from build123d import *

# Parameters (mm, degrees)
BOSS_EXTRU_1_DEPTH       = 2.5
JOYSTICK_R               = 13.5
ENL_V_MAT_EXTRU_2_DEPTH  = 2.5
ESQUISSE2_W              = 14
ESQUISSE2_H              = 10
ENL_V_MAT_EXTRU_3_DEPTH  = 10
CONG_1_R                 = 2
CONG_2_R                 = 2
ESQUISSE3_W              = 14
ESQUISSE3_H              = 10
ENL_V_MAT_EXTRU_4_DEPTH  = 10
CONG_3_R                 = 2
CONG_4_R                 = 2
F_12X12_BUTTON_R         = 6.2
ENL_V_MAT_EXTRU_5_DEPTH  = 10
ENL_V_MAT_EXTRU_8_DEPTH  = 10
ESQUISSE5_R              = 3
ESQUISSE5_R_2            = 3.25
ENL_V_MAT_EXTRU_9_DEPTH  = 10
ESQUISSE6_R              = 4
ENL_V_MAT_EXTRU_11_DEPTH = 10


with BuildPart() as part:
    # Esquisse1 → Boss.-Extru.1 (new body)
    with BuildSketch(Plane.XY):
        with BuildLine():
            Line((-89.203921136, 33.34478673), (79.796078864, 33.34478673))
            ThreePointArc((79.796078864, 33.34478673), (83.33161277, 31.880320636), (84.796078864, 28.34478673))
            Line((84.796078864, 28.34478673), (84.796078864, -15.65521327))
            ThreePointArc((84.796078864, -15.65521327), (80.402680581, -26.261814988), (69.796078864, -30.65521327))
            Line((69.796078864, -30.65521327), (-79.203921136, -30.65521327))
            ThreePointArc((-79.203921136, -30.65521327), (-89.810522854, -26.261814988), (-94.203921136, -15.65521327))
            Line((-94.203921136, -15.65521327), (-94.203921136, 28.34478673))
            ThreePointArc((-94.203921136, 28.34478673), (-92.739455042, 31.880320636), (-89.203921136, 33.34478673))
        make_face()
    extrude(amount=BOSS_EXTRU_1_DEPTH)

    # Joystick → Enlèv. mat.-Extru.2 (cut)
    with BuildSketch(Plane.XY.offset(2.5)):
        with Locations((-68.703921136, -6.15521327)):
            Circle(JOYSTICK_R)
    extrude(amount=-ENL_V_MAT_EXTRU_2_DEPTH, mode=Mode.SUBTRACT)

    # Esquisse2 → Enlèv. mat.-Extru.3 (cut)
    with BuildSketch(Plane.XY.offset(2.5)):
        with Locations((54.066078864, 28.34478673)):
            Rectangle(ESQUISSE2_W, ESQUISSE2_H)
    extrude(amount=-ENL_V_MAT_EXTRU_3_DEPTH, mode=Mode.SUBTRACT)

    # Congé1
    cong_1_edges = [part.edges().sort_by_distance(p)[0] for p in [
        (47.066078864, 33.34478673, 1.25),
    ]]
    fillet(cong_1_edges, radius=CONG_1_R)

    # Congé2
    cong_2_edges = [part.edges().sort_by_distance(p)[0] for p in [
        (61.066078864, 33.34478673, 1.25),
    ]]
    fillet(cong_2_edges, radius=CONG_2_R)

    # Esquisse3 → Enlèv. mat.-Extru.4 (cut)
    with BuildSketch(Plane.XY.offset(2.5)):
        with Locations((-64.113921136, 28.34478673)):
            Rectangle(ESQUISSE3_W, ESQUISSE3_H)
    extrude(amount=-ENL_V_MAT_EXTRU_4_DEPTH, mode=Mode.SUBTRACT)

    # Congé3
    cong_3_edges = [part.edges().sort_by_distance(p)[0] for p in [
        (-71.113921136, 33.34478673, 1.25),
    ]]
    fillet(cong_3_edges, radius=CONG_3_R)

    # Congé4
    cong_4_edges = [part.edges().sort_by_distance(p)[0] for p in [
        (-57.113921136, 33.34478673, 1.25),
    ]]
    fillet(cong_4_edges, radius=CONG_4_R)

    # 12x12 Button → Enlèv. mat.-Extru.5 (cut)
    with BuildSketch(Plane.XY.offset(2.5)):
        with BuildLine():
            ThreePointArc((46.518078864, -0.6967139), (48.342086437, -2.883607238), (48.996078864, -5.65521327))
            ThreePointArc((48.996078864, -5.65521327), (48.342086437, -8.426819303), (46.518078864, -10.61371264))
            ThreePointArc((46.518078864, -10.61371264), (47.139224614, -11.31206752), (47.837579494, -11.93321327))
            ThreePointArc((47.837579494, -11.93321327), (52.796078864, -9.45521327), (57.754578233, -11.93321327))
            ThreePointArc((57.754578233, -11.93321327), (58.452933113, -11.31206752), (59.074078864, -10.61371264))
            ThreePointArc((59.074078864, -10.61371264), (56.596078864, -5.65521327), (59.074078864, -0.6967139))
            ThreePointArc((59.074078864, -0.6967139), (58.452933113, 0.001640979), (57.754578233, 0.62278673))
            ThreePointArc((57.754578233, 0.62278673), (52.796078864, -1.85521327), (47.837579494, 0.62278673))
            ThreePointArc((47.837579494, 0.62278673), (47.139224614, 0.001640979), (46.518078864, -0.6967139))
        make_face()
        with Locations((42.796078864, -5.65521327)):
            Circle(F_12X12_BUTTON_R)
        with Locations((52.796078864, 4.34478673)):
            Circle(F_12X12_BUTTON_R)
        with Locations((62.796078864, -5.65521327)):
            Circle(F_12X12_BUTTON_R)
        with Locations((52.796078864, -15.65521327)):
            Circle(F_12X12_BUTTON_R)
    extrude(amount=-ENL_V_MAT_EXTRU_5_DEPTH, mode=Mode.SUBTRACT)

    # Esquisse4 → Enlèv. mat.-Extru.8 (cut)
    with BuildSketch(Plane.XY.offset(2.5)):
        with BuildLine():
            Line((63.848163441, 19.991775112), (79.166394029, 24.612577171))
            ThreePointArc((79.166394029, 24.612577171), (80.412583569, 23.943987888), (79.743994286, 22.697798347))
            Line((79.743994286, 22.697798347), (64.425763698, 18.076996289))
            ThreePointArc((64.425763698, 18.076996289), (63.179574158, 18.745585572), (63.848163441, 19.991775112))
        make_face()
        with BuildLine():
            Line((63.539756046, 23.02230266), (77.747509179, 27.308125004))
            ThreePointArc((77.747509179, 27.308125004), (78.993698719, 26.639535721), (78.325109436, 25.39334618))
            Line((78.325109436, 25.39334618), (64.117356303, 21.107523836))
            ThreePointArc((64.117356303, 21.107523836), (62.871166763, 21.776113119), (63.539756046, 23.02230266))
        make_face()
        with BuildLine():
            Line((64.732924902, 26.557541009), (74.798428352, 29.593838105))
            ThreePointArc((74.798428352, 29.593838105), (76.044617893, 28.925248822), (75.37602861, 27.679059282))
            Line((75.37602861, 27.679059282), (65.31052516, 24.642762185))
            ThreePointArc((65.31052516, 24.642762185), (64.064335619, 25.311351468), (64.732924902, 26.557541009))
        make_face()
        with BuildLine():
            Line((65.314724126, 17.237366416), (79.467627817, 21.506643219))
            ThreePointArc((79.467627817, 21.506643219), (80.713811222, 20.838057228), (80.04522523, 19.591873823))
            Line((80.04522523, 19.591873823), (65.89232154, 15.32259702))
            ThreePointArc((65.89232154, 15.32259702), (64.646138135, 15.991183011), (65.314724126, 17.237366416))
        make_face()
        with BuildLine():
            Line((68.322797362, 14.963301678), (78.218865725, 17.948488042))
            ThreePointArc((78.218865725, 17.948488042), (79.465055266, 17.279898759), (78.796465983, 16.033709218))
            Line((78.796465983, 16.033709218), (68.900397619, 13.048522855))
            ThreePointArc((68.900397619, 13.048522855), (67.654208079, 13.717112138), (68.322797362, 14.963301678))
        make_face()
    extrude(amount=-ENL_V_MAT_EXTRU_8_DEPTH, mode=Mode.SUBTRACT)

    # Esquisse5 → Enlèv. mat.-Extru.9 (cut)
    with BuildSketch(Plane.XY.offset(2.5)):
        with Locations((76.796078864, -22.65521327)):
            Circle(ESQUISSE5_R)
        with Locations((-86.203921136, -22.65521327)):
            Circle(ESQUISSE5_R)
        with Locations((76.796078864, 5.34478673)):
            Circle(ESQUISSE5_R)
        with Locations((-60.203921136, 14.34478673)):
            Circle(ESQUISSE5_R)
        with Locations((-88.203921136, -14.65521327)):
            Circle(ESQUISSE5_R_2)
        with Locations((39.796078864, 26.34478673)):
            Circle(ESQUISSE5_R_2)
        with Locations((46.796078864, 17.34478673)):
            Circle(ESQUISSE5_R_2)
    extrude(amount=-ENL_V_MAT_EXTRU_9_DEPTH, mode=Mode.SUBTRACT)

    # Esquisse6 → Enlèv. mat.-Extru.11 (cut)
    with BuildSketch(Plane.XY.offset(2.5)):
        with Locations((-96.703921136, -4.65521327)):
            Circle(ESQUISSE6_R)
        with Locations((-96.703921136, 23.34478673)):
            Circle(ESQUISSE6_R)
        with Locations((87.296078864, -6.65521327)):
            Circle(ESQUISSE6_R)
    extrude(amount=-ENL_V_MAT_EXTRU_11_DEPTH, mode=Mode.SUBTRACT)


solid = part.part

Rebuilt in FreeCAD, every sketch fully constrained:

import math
import FreeCAD as App
import Part
import Sketcher
from FreeCAD import Vector


def edges_at(feature, points):
    """Names of the edges that pass closest to the given points."""
    edges = feature.Shape.Edges
    near = lambda p: min(range(len(edges)), key=lambda i: edges[i].distToShape(Part.Vertex(*p))[0])
    return sorted({f"Edge{near(p) + 1}" for p in points})

doc = App.newDocument("Part")
params = doc.addObject("Spreadsheet::Sheet", "Params")
for row, (alias, value) in enumerate([
    ("sketch1_radius", "5 mm"),
    ("sketch1_radius2", "15 mm"),
    ("sketch1_width", "169 mm"),
    ("sketch1_height", "44 mm"),
    ("pad1_length", "2.5 mm"),
    ("sketch2_diameter", "27 mm"),
    ("pocket1_length", "2.5 mm"),
    ("sketch3_width", "14 mm"),
    ("sketch3_height", "10 mm"),
    ("pocket2_length", "10 mm"),
    ("fillet_radius", "2 mm"),
    ("fillet2_radius", "2 mm"),
    ("sketch4_width", "14 mm"),
    ("sketch4_height", "10 mm"),
    ("pocket3_length", "10 mm"),
    ("fillet3_radius", "2 mm"),
    ("fillet4_radius", "2 mm"),
    ("sketch5_radius", "8 mm"),
    ("sketch5_radius2", "6.2 mm"),
    ("pocket4_length", "10 mm"),
    ("sketch6_radius", "1 mm"),
    ("sketch6_length", "16 mm"),
    ("pocket5_length", "10 mm"),
    ("sketch7_diameter", "6 mm"),
    ("sketch7_diameter2", "6.5 mm"),
    ("pocket6_length", "10 mm"),
    ("sketch8_diameter", "8 mm"),
    ("pocket7_length", "10 mm"),
], start=1):
    params.set(f"A{row}", alias)
    params.set(f"B{row}", "=" + value)
    params.setAlias(f"B{row}", alias)

body = doc.addObject("PartDesign::Body", "Body")

# Sketch on XY plane
sketch1 = body.newObject("Sketcher::SketchObject", "Sketch")
sketch1.AttachmentSupport = (doc.getObject("XY_Plane"), [""])
sketch1.MapMode = "FlatFace"
sketch1.addGeometry([
    Part.LineSegment(Vector(79.796079, 33.344787, 0), Vector(-89.203921, 33.344787, 0)),  # 0
    Part.ArcOfCircle(Part.Circle(Vector(-89.203921, 28.344787, 0), Vector(0, 0, 1), 5), math.radians(90), math.radians(180)),  # 1
    Part.LineSegment(Vector(-94.203921, 28.344787, 0), Vector(-94.203921, -15.655213, 0)),  # 2
    Part.ArcOfCircle(Part.Circle(Vector(-79.203921, -15.655213, 0), Vector(0, 0, 1), 15), math.radians(180), math.radians(270)),  # 3
    Part.LineSegment(Vector(-79.203921, -30.655213, 0), Vector(69.796079, -30.655213, 0)),  # 4
    Part.ArcOfCircle(Part.Circle(Vector(69.796079, -15.655213, 0), Vector(0, 0, 1), 15), math.radians(-90), math.radians(0)),  # 5
    Part.LineSegment(Vector(84.796079, -15.655213, 0), Vector(84.796079, 28.344787, 0)),  # 6
    Part.ArcOfCircle(Part.Circle(Vector(79.796079, 28.344787, 0), Vector(0, 0, 1), 5), math.radians(0), math.radians(90)),  # 7
], False)
sketch1.addConstraint([
    Sketcher.Constraint("Tangent", 0, 2, 1, 1),
    Sketcher.Constraint("Tangent", 1, 2, 2, 1),
    Sketcher.Constraint("Tangent", 2, 2, 3, 1),
    Sketcher.Constraint("Tangent", 3, 2, 4, 1),
    Sketcher.Constraint("Tangent", 4, 2, 5, 1),
    Sketcher.Constraint("Tangent", 5, 2, 6, 1),
    Sketcher.Constraint("Tangent", 6, 2, 7, 1),
    Sketcher.Constraint("Tangent", 7, 2, 0, 1),
    Sketcher.Constraint("Horizontal", 0),
    Sketcher.Constraint("Vertical", 2),
    Sketcher.Constraint("Horizontal", 4),
    Sketcher.Constraint("Vertical", 6),
    Sketcher.Constraint("Equal", 3, 5),
    Sketcher.Constraint("Equal", 1, 7),
    Sketcher.Constraint("Radius", 1, 5.0),
    Sketcher.Constraint("Radius", 3, 15.0),
    Sketcher.Constraint("DistanceX", 0, 2, 0, 1, 169.0),
    Sketcher.Constraint("DistanceY", 2, 2, 2, 1, 44.0),
    Sketcher.Constraint("DistanceX", 1, 3, -1, 1, 89.203921),
    Sketcher.Constraint("DistanceY", -1, 1, 1, 3, 28.344787),
])
sketch1.setExpression("Constraints[14]", "Params.sketch1_radius")
sketch1.setExpression("Constraints[15]", "Params.sketch1_radius2")
sketch1.setExpression("Constraints[16]", "Params.sketch1_width")
sketch1.setExpression("Constraints[17]", "Params.sketch1_height")
pad1 = body.newObject("PartDesign::Pad", "Pad")
pad1.Profile = sketch1
pad1.setExpression("Length", "Params.pad1_length")

# Sketch on XY plane
sketch2 = body.newObject("Sketcher::SketchObject", "Sketch001")
sketch2.AttachmentSupport = (doc.getObject("XY_Plane"), [""])
sketch2.MapMode = "FlatFace"
sketch2.AttachmentOffset = App.Placement(Vector(0, 0, 2.5), App.Rotation())
sketch2.addGeometry(Part.Circle(Vector(-68.703921, -6.155213, 0), Vector(0, 0, 1), 13.5), False)
sketch2.addConstraint([
    Sketcher.Constraint("Diameter", 0, 27.0),
    Sketcher.Constraint("DistanceX", 0, 3, -1, 1, 68.703921),
    Sketcher.Constraint("DistanceY", 0, 3, -1, 1, 6.155213),
])
sketch2.setExpression("Constraints[0]", "Params.sketch2_diameter")
pocket1 = body.newObject("PartDesign::Pocket", "Pocket")
pocket1.Profile = sketch2
pocket1.setExpression("Length", "Params.pocket1_length")

# Sketch on XY plane
sketch3 = body.newObject("Sketcher::SketchObject", "Sketch002")
sketch3.AttachmentSupport = (doc.getObject("XY_Plane"), [""])
sketch3.MapMode = "FlatFace"
sketch3.AttachmentOffset = App.Placement(Vector(0, 0, 2.5), App.Rotation())
sketch3.addGeometry([
    Part.LineSegment(Vector(47.066079, 33.344787, 0), Vector(47.066079, 23.344787, 0)),
    Part.LineSegment(Vector(47.066079, 23.344787, 0), Vector(61.066079, 23.344787, 0)),
    Part.LineSegment(Vector(61.066079, 23.344787, 0), Vector(61.066079, 33.344787, 0)),
    Part.LineSegment(Vector(61.066079, 33.344787, 0), Vector(47.066079, 33.344787, 0)),
], False)
sketch3.addConstraint([
    Sketcher.Constraint("Coincident", 0, 2, 1, 1),
    Sketcher.Constraint("Coincident", 1, 2, 2, 1),
    Sketcher.Constraint("Coincident", 2, 2, 3, 1),
    Sketcher.Constraint("Coincident", 3, 2, 0, 1),
    Sketcher.Constraint("Vertical", 0),
    Sketcher.Constraint("Horizontal", 1),
    Sketcher.Constraint("Vertical", 2),
    Sketcher.Constraint("Horizontal", 3),
    Sketcher.Constraint("DistanceX", 1, 1, 1, 2, 14.0),
    Sketcher.Constraint("DistanceY", 0, 2, 0, 1, 10.0),
    Sketcher.Constraint("DistanceX", -1, 1, 0, 2, 47.066079),
    Sketcher.Constraint("DistanceY", -1, 1, 0, 2, 23.344787),
])
sketch3.setExpression("Constraints[8]", "Params.sketch3_width")
sketch3.setExpression("Constraints[9]", "Params.sketch3_height")
pocket2 = body.newObject("PartDesign::Pocket", "Pocket001")
pocket2.Profile = sketch3
pocket2.setExpression("Length", "Params.pocket2_length")
doc.recompute()

fillet = body.newObject("PartDesign::Fillet", "Fillet")
fillet.Base = (pocket2, edges_at(pocket2, [(47.066, 33.345, 1.25)]))
fillet.setExpression("Radius", "Params.fillet_radius")
doc.recompute()

fillet2 = body.newObject("PartDesign::Fillet", "Fillet001")
fillet2.Base = (fillet, edges_at(fillet, [(61.066, 33.345, 1.25)]))
fillet2.setExpression("Radius", "Params.fillet2_radius")

# Sketch on XY plane
sketch4 = body.newObject("Sketcher::SketchObject", "Sketch003")
sketch4.AttachmentSupport = (doc.getObject("XY_Plane"), [""])
sketch4.MapMode = "FlatFace"
sketch4.AttachmentOffset = App.Placement(Vector(0, 0, 2.5), App.Rotation())
sketch4.addGeometry([
    Part.LineSegment(Vector(-71.113921, 33.344787, 0), Vector(-71.113921, 23.344787, 0)),
    Part.LineSegment(Vector(-71.113921, 23.344787, 0), Vector(-57.113921, 23.344787, 0)),
    Part.LineSegment(Vector(-57.113921, 23.344787, 0), Vector(-57.113921, 33.344787, 0)),
    Part.LineSegment(Vector(-57.113921, 33.344787, 0), Vector(-71.113921, 33.344787, 0)),
], False)
sketch4.addConstraint([
    Sketcher.Constraint("Coincident", 0, 2, 1, 1),
    Sketcher.Constraint("Coincident", 1, 2, 2, 1),
    Sketcher.Constraint("Coincident", 2, 2, 3, 1),
    Sketcher.Constraint("Coincident", 3, 2, 0, 1),
    Sketcher.Constraint("Vertical", 0),
    Sketcher.Constraint("Horizontal", 1),
    Sketcher.Constraint("Vertical", 2),
    Sketcher.Constraint("Horizontal", 3),
    Sketcher.Constraint("DistanceX", 1, 1, 1, 2, 14.0),
    Sketcher.Constraint("DistanceY", 0, 2, 0, 1, 10.0),
    Sketcher.Constraint("DistanceX", 0, 2, -1, 1, 71.113921),
    Sketcher.Constraint("DistanceY", -1, 1, 0, 2, 23.344787),
])
sketch4.setExpression("Constraints[8]", "Params.sketch4_width")
sketch4.setExpression("Constraints[9]", "Params.sketch4_height")
pocket3 = body.newObject("PartDesign::Pocket", "Pocket002")
pocket3.Profile = sketch4
pocket3.setExpression("Length", "Params.pocket3_length")
doc.recompute()

fillet3 = body.newObject("PartDesign::Fillet", "Fillet002")
fillet3.Base = (pocket3, edges_at(pocket3, [(-71.114, 33.345, 1.25)]))
fillet3.setExpression("Radius", "Params.fillet3_radius")
doc.recompute()

fillet4 = body.newObject("PartDesign::Fillet", "Fillet003")
fillet4.Base = (fillet3, edges_at(fillet3, [(-57.114, 33.345, 1.25)]))
fillet4.setExpression("Radius", "Params.fillet4_radius")

# Sketch on XY plane
sketch5 = body.newObject("Sketcher::SketchObject", "Sketch004")
sketch5.AttachmentSupport = (doc.getObject("XY_Plane"), [""])
sketch5.MapMode = "FlatFace"
sketch5.AttachmentOffset = App.Placement(Vector(0, 0, 2.5), App.Rotation())
sketch5.addGeometry([
    Part.ArcOfCircle(Part.Circle(Vector(52.796079, -5.655213, 0), Vector(0, 0, 1), 8), math.radians(-141.697562), math.radians(-128.302438)),  # 0
    Part.ArcOfCircle(Part.Circle(Vector(52.796079, -15.655213, 0), Vector(0, 0, 1), 6.2), math.radians(143.106996), math.radians(396.893004)),  # 1
    Part.ArcOfCircle(Part.Circle(Vector(52.796079, -5.655213, 0), Vector(0, 0, 1), 8), math.radians(-51.697562), math.radians(-38.302438)),  # 2
    Part.ArcOfCircle(Part.Circle(Vector(62.796079, -5.655213, 0), Vector(0, 0, 1), 6.2), math.radians(-126.893004), math.radians(126.893004)),  # 3
    Part.ArcOfCircle(Part.Circle(Vector(52.796079, -5.655213, 0), Vector(0, 0, 1), 8), math.radians(38.302438), math.radians(51.697562)),  # 4
    Part.ArcOfCircle(Part.Circle(Vector(52.796079, 4.344787, 0), Vector(0, 0, 1), 6.2), math.radians(-36.893004), math.radians(216.893004)),  # 5
    Part.ArcOfCircle(Part.Circle(Vector(52.796079, -5.655213, 0), Vector(0, 0, 1), 8), math.radians(128.302438), math.radians(141.697562)),  # 6
    Part.ArcOfCircle(Part.Circle(Vector(42.796079, -5.655213, 0), Vector(0, 0, 1), 6.2), math.radians(53.106996), math.radians(306.893004)),  # 7
], False)
sketch5.addConstraint([
    Sketcher.Constraint("Coincident", 0, 2, 1, 1),
    Sketcher.Constraint("Coincident", 1, 2, 2, 1),
    Sketcher.Constraint("Coincident", 2, 2, 3, 1),
    Sketcher.Constraint("Coincident", 3, 2, 4, 1),
    Sketcher.Constraint("Coincident", 4, 2, 5, 1),
    Sketcher.Constraint("Coincident", 5, 2, 6, 1),
    Sketcher.Constraint("Coincident", 6, 2, 7, 1),
    Sketcher.Constraint("Coincident", 7, 2, 0, 1),
    Sketcher.Constraint("Coincident", 2, 3, 0, 3),
    Sketcher.Constraint("Coincident", 4, 3, 0, 3),
    Sketcher.Constraint("Coincident", 6, 3, 0, 3),
    Sketcher.Constraint("Equal", 0, 2),
    Sketcher.Constraint("Equal", 1, 3),
    Sketcher.Constraint("Equal", 2, 4),
    Sketcher.Constraint("Equal", 3, 5),
    Sketcher.Constraint("Equal", 4, 6),
    Sketcher.Constraint("Equal", 5, 7),
    Sketcher.Constraint("Horizontal", 2, 3, 3, 3),
    Sketcher.Constraint("Horizontal", 6, 3, 7, 3),
    Sketcher.Constraint("Horizontal", 0, 2, 1, 2),
    Sketcher.Constraint("Horizontal", 4, 2, 5, 2),
    Sketcher.Constraint("Horizontal", 3, 2, 6, 2),
    Sketcher.Constraint("Vertical", 1, 2, 4, 2),
    Sketcher.Constraint("Radius", 0, 8.0),
    Sketcher.Constraint("Radius", 1, 6.2),
    Sketcher.Constraint("DistanceY", 1, 3, 0, 3, 10.0),
    Sketcher.Constraint("DistanceX", 2, 3, 3, 3, 10.0),
    Sketcher.Constraint("DistanceX", -1, 1, 0, 3, 52.796079),
    Sketcher.Constraint("DistanceY", 0, 3, -1, 1, 5.655213),
])
sketch5.setExpression("Constraints[23]", "Params.sketch5_radius")
sketch5.setExpression("Constraints[24]", "Params.sketch5_radius2")
pocket4 = body.newObject("PartDesign::Pocket", "Pocket003")
pocket4.Profile = sketch5
pocket4.setExpression("Length", "Params.pocket4_length")

# Sketch on XY plane
sketch6 = body.newObject("Sketcher::SketchObject", "Sketch005")
sketch6.AttachmentSupport = (doc.getObject("XY_Plane"), [""])
sketch6.MapMode = "FlatFace"
sketch6.AttachmentOffset = App.Placement(Vector(0, 0, 2.5), App.Rotation())
sketch6.addGeometry([
    Part.LineSegment(Vector(79.166394, 24.612577, 0), Vector(63.848163, 19.991775, 0)),  # 0
    Part.ArcOfCircle(Part.Circle(Vector(64.136964, 19.034386, 0), Vector(0, 0, 1), 1), math.radians(106.786135), math.radians(286.786135)),  # 1
    Part.LineSegment(Vector(64.425764, 18.076996, 0), Vector(79.743994, 22.697798, 0)),  # 2
    Part.ArcOfCircle(Part.Circle(Vector(79.455194, 23.655188, 0), Vector(0, 0, 1), 1), math.radians(-73.213865), math.radians(106.786135)),  # 3
    Part.LineSegment(Vector(77.747509, 27.308125, 0), Vector(63.539756, 23.022303, 0)),  # 4
    Part.ArcOfCircle(Part.Circle(Vector(63.828556, 22.064913, 0), Vector(0, 0, 1), 1), math.radians(106.786135), math.radians(286.786135)),  # 5
    Part.LineSegment(Vector(64.117356, 21.107524, 0), Vector(78.325109, 25.393346, 0)),  # 6
    Part.ArcOfCircle(Part.Circle(Vector(78.036309, 26.350736, 0), Vector(0, 0, 1), 1), math.radians(-73.213865), math.radians(106.786135)),  # 7
    Part.LineSegment(Vector(74.798428, 29.593838, 0), Vector(64.732925, 26.557541, 0)),  # 8
    Part.ArcOfCircle(Part.Circle(Vector(65.021725, 25.600152, 0), Vector(0, 0, 1), 1), math.radians(106.786135), math.radians(286.786135)),  # 9
    Part.LineSegment(Vector(65.310525, 24.642762, 0), Vector(75.376029, 27.679059, 0)),  # 10
    Part.ArcOfCircle(Part.Circle(Vector(75.087228, 28.636449, 0), Vector(0, 0, 1), 1), math.radians(-73.213865), math.radians(106.786135)),  # 11
    Part.LineSegment(Vector(79.467628, 21.506643, 0), Vector(65.314724, 17.237366, 0)),  # 12
    Part.ArcOfCircle(Part.Circle(Vector(65.603523, 16.279982, 0), Vector(0, 0, 1), 0.999995), math.radians(106.786135), math.radians(286.786135)),  # 13
    Part.LineSegment(Vector(65.892322, 15.322597, 0), Vector(80.045225, 19.591874, 0)),  # 14
    Part.ArcOfCircle(Part.Circle(Vector(79.756427, 20.549259, 0), Vector(0, 0, 1), 0.999995), math.radians(-73.213865), math.radians(106.786135)),  # 15
    Part.LineSegment(Vector(78.218866, 17.948488, 0), Vector(68.322797, 14.963302, 0)),  # 16
    Part.ArcOfCircle(Part.Circle(Vector(68.611597, 14.005912, 0), Vector(0, 0, 1), 1), math.radians(106.786135), math.radians(286.786135)),  # 17
    Part.LineSegment(Vector(68.900398, 13.048523, 0), Vector(78.796466, 16.033709, 0)),  # 18
    Part.ArcOfCircle(Part.Circle(Vector(78.507666, 16.991099, 0), Vector(0, 0, 1), 1), math.radians(-73.213865), math.radians(106.786135)),  # 19
], False)
sketch6.addConstraint([
    Sketcher.Constraint("Tangent", 0, 2, 1, 1),
    Sketcher.Constraint("Tangent", 1, 2, 2, 1),
    Sketcher.Constraint("Tangent", 2, 2, 3, 1),
    Sketcher.Constraint("Tangent", 3, 2, 0, 1),
    Sketcher.Constraint("Tangent", 4, 2, 5, 1),
    Sketcher.Constraint("Tangent", 5, 2, 6, 1),
    Sketcher.Constraint("Tangent", 6, 2, 7, 1),
    Sketcher.Constraint("Tangent", 7, 2, 4, 1),
    Sketcher.Constraint("Tangent", 8, 2, 9, 1),
    Sketcher.Constraint("Tangent", 9, 2, 10, 1),
    Sketcher.Constraint("Tangent", 10, 2, 11, 1),
    Sketcher.Constraint("Tangent", 11, 2, 8, 1),
    Sketcher.Constraint("Tangent", 12, 2, 13, 1),
    Sketcher.Constraint("Tangent", 13, 2, 14, 1),
    Sketcher.Constraint("Tangent", 14, 2, 15, 1),
    Sketcher.Constraint("Tangent", 15, 2, 12, 1),
    Sketcher.Constraint("Tangent", 16, 2, 17, 1),
    Sketcher.Constraint("Tangent", 17, 2, 18, 1),
    Sketcher.Constraint("Tangent", 18, 2, 19, 1),
    Sketcher.Constraint("Tangent", 19, 2, 16, 1),
    Sketcher.Constraint("Equal", 1, 3),
    Sketcher.Constraint("Equal", 3, 5),
    Sketcher.Constraint("Equal", 5, 7),
    Sketcher.Constraint("Equal", 7, 9),
    Sketcher.Constraint("Equal", 9, 11),
    Sketcher.Constraint("Equal", 13, 15),
    Sketcher.Constraint("Equal", 11, 17),
    Sketcher.Constraint("Equal", 17, 19),
    Sketcher.Constraint("Parallel", 2, 4),
    Sketcher.Constraint("Parallel", 6, 8),
    Sketcher.Constraint("Parallel", 10, 12),
    Sketcher.Constraint("Parallel", 14, 16),
    Sketcher.Constraint("Radius", 1, 1.0),
    Sketcher.Constraint("Distance", 0, 16.0),
    Sketcher.Constraint("Radius", 13, 0.999995),
    Sketcher.Constraint("DistanceY", 17, 3, 5, 3, 8.059001),
    Sketcher.Constraint("Distance", 4, 14.840098),
    Sketcher.Constraint("DistanceY", -1, 1, 19, 3, 16.991099),
    Sketcher.Constraint("DistanceY", -1, 1, 2, 2, 22.697798),
    Sketcher.Constraint("DistanceY", -1, 1, 16, 2, 14.963302),
    Sketcher.Constraint("DistanceX", 11, 3, 15, 3, 4.669198),
    Sketcher.Constraint("DistanceX", 9, 3, 15, 3, 14.734701),
    Sketcher.Constraint("DistanceX", 0, 2, 1, 3, 0.2888),
    Sketcher.Constraint("DistanceY", 13, 2, 1, 2, 2.754399),
    Sketcher.Constraint("DistanceX", -1, 1, 7, 3, 78.036309),
    Sketcher.Constraint("DistanceY", -1, 1, 9, 3, 25.600152),
    Sketcher.Constraint("DistanceX", -1, 1, 11, 3, 75.087228),
    Sketcher.Constraint("DistanceY", -1, 1, 15, 3, 20.549259),
    Sketcher.Constraint("DistanceX", 1, 3, 9, 3, 0.884761),
    Sketcher.Constraint("DistanceX", 5, 3, 17, 3, 4.783041),
])
sketch6.setExpression("Constraints[32]", "Params.sketch6_radius")
sketch6.setExpression("Constraints[33]", "Params.sketch6_length")
pocket5 = body.newObject("PartDesign::Pocket", "Pocket004")
pocket5.Profile = sketch6
pocket5.setExpression("Length", "Params.pocket5_length")

# Sketch on XY plane
sketch7 = body.newObject("Sketcher::SketchObject", "Sketch006")
sketch7.AttachmentSupport = (doc.getObject("XY_Plane"), [""])
sketch7.MapMode = "FlatFace"
sketch7.AttachmentOffset = App.Placement(Vector(0, 0, 2.5), App.Rotation())
sketch7.addGeometry([
    Part.Circle(Vector(76.796079, -22.655213, 0), Vector(0, 0, 1), 3),  # 0
    Part.Circle(Vector(-86.203921, -22.655213, 0), Vector(0, 0, 1), 3),  # 1
    Part.Circle(Vector(76.796079, 5.344787, 0), Vector(0, 0, 1), 3),  # 2
    Part.Circle(Vector(-60.203921, 14.344787, 0), Vector(0, 0, 1), 3),  # 3
    Part.Circle(Vector(-88.203921, -14.655213, 0), Vector(0, 0, 1), 3.25),  # 4
    Part.Circle(Vector(39.796079, 26.344787, 0), Vector(0, 0, 1), 3.25),  # 5
    Part.Circle(Vector(46.796079, 17.344787, 0), Vector(0, 0, 1), 3.25),  # 6
], False)
sketch7.addConstraint([
    Sketcher.Constraint("Equal", 0, 1),
    Sketcher.Constraint("Equal", 1, 2),
    Sketcher.Constraint("Equal", 2, 3),
    Sketcher.Constraint("Equal", 4, 5),
    Sketcher.Constraint("Equal", 5, 6),
    Sketcher.Constraint("Horizontal", 0, 3, 1, 3),
    Sketcher.Constraint("Vertical", 0, 3, 2, 3),
    Sketcher.Constraint("Diameter", 0, 6.0),
    Sketcher.Constraint("Diameter", 4, 6.5),
    Sketcher.Constraint("DistanceX", 1, 3, 0, 3, 163.0),
    Sketcher.Constraint("DistanceY", 0, 3, 2, 3, 28.0),
    Sketcher.Constraint("DistanceX", 1, 3, 3, 3, 26.0),
    Sketcher.Constraint("DistanceY", 1, 3, 3, 3, 37.0),
    Sketcher.Constraint("DistanceX", 4, 3, 1, 3, 2.0),
    Sketcher.Constraint("DistanceY", 1, 3, 4, 3, 8.0),
    Sketcher.Constraint("DistanceX", 5, 3, 2, 3, 37.0),
    Sketcher.Constraint("DistanceY", 2, 3, 5, 3, 21.0),
    Sketcher.Constraint("DistanceX", 5, 3, 6, 3, 7.0),
    Sketcher.Constraint("DistanceY", 6, 3, 5, 3, 9.0),
    Sketcher.Constraint("DistanceX", -1, 1, 0, 3, 76.796079),
    Sketcher.Constraint("DistanceY", 0, 3, -1, 1, 22.655213),
])
sketch7.setExpression("Constraints[7]", "Params.sketch7_diameter")
sketch7.setExpression("Constraints[8]", "Params.sketch7_diameter2")
pocket6 = body.newObject("PartDesign::Pocket", "Pocket005")
pocket6.Profile = sketch7
pocket6.setExpression("Length", "Params.pocket6_length")

# Sketch on XY plane
sketch8 = body.newObject("Sketcher::SketchObject", "Sketch007")
sketch8.AttachmentSupport = (doc.getObject("XY_Plane"), [""])
sketch8.MapMode = "FlatFace"
sketch8.AttachmentOffset = App.Placement(Vector(0, 0, 2.5), App.Rotation())
sketch8.addGeometry([
    Part.Circle(Vector(-96.703921, -4.655213, 0), Vector(0, 0, 1), 4),
    Part.Circle(Vector(-96.703921, 23.344787, 0), Vector(0, 0, 1), 4),
    Part.Circle(Vector(87.296079, -6.655213, 0), Vector(0, 0, 1), 4),
], False)
sketch8.addConstraint([
    Sketcher.Constraint("Equal", 0, 1),
    Sketcher.Constraint("Equal", 1, 2),
    Sketcher.Constraint("Vertical", 0, 3, 1, 3),
    Sketcher.Constraint("Diameter", 0, 8.0),
    Sketcher.Constraint("DistanceY", 0, 3, 1, 3, 28.0),
    Sketcher.Constraint("DistanceX", 0, 3, 2, 3, 184.0),
    Sketcher.Constraint("DistanceY", 2, 3, 0, 3, 2.0),
    Sketcher.Constraint("DistanceX", 0, 3, -1, 1, 96.703921),
    Sketcher.Constraint("DistanceY", 0, 3, -1, 1, 4.655213),
])
sketch8.setExpression("Constraints[3]", "Params.sketch8_diameter")
pocket7 = body.newObject("PartDesign::Pocket", "Pocket006")
pocket7.Profile = sketch8
pocket7.setExpression("Length", "Params.pocket7_length")

doc.recompute()
